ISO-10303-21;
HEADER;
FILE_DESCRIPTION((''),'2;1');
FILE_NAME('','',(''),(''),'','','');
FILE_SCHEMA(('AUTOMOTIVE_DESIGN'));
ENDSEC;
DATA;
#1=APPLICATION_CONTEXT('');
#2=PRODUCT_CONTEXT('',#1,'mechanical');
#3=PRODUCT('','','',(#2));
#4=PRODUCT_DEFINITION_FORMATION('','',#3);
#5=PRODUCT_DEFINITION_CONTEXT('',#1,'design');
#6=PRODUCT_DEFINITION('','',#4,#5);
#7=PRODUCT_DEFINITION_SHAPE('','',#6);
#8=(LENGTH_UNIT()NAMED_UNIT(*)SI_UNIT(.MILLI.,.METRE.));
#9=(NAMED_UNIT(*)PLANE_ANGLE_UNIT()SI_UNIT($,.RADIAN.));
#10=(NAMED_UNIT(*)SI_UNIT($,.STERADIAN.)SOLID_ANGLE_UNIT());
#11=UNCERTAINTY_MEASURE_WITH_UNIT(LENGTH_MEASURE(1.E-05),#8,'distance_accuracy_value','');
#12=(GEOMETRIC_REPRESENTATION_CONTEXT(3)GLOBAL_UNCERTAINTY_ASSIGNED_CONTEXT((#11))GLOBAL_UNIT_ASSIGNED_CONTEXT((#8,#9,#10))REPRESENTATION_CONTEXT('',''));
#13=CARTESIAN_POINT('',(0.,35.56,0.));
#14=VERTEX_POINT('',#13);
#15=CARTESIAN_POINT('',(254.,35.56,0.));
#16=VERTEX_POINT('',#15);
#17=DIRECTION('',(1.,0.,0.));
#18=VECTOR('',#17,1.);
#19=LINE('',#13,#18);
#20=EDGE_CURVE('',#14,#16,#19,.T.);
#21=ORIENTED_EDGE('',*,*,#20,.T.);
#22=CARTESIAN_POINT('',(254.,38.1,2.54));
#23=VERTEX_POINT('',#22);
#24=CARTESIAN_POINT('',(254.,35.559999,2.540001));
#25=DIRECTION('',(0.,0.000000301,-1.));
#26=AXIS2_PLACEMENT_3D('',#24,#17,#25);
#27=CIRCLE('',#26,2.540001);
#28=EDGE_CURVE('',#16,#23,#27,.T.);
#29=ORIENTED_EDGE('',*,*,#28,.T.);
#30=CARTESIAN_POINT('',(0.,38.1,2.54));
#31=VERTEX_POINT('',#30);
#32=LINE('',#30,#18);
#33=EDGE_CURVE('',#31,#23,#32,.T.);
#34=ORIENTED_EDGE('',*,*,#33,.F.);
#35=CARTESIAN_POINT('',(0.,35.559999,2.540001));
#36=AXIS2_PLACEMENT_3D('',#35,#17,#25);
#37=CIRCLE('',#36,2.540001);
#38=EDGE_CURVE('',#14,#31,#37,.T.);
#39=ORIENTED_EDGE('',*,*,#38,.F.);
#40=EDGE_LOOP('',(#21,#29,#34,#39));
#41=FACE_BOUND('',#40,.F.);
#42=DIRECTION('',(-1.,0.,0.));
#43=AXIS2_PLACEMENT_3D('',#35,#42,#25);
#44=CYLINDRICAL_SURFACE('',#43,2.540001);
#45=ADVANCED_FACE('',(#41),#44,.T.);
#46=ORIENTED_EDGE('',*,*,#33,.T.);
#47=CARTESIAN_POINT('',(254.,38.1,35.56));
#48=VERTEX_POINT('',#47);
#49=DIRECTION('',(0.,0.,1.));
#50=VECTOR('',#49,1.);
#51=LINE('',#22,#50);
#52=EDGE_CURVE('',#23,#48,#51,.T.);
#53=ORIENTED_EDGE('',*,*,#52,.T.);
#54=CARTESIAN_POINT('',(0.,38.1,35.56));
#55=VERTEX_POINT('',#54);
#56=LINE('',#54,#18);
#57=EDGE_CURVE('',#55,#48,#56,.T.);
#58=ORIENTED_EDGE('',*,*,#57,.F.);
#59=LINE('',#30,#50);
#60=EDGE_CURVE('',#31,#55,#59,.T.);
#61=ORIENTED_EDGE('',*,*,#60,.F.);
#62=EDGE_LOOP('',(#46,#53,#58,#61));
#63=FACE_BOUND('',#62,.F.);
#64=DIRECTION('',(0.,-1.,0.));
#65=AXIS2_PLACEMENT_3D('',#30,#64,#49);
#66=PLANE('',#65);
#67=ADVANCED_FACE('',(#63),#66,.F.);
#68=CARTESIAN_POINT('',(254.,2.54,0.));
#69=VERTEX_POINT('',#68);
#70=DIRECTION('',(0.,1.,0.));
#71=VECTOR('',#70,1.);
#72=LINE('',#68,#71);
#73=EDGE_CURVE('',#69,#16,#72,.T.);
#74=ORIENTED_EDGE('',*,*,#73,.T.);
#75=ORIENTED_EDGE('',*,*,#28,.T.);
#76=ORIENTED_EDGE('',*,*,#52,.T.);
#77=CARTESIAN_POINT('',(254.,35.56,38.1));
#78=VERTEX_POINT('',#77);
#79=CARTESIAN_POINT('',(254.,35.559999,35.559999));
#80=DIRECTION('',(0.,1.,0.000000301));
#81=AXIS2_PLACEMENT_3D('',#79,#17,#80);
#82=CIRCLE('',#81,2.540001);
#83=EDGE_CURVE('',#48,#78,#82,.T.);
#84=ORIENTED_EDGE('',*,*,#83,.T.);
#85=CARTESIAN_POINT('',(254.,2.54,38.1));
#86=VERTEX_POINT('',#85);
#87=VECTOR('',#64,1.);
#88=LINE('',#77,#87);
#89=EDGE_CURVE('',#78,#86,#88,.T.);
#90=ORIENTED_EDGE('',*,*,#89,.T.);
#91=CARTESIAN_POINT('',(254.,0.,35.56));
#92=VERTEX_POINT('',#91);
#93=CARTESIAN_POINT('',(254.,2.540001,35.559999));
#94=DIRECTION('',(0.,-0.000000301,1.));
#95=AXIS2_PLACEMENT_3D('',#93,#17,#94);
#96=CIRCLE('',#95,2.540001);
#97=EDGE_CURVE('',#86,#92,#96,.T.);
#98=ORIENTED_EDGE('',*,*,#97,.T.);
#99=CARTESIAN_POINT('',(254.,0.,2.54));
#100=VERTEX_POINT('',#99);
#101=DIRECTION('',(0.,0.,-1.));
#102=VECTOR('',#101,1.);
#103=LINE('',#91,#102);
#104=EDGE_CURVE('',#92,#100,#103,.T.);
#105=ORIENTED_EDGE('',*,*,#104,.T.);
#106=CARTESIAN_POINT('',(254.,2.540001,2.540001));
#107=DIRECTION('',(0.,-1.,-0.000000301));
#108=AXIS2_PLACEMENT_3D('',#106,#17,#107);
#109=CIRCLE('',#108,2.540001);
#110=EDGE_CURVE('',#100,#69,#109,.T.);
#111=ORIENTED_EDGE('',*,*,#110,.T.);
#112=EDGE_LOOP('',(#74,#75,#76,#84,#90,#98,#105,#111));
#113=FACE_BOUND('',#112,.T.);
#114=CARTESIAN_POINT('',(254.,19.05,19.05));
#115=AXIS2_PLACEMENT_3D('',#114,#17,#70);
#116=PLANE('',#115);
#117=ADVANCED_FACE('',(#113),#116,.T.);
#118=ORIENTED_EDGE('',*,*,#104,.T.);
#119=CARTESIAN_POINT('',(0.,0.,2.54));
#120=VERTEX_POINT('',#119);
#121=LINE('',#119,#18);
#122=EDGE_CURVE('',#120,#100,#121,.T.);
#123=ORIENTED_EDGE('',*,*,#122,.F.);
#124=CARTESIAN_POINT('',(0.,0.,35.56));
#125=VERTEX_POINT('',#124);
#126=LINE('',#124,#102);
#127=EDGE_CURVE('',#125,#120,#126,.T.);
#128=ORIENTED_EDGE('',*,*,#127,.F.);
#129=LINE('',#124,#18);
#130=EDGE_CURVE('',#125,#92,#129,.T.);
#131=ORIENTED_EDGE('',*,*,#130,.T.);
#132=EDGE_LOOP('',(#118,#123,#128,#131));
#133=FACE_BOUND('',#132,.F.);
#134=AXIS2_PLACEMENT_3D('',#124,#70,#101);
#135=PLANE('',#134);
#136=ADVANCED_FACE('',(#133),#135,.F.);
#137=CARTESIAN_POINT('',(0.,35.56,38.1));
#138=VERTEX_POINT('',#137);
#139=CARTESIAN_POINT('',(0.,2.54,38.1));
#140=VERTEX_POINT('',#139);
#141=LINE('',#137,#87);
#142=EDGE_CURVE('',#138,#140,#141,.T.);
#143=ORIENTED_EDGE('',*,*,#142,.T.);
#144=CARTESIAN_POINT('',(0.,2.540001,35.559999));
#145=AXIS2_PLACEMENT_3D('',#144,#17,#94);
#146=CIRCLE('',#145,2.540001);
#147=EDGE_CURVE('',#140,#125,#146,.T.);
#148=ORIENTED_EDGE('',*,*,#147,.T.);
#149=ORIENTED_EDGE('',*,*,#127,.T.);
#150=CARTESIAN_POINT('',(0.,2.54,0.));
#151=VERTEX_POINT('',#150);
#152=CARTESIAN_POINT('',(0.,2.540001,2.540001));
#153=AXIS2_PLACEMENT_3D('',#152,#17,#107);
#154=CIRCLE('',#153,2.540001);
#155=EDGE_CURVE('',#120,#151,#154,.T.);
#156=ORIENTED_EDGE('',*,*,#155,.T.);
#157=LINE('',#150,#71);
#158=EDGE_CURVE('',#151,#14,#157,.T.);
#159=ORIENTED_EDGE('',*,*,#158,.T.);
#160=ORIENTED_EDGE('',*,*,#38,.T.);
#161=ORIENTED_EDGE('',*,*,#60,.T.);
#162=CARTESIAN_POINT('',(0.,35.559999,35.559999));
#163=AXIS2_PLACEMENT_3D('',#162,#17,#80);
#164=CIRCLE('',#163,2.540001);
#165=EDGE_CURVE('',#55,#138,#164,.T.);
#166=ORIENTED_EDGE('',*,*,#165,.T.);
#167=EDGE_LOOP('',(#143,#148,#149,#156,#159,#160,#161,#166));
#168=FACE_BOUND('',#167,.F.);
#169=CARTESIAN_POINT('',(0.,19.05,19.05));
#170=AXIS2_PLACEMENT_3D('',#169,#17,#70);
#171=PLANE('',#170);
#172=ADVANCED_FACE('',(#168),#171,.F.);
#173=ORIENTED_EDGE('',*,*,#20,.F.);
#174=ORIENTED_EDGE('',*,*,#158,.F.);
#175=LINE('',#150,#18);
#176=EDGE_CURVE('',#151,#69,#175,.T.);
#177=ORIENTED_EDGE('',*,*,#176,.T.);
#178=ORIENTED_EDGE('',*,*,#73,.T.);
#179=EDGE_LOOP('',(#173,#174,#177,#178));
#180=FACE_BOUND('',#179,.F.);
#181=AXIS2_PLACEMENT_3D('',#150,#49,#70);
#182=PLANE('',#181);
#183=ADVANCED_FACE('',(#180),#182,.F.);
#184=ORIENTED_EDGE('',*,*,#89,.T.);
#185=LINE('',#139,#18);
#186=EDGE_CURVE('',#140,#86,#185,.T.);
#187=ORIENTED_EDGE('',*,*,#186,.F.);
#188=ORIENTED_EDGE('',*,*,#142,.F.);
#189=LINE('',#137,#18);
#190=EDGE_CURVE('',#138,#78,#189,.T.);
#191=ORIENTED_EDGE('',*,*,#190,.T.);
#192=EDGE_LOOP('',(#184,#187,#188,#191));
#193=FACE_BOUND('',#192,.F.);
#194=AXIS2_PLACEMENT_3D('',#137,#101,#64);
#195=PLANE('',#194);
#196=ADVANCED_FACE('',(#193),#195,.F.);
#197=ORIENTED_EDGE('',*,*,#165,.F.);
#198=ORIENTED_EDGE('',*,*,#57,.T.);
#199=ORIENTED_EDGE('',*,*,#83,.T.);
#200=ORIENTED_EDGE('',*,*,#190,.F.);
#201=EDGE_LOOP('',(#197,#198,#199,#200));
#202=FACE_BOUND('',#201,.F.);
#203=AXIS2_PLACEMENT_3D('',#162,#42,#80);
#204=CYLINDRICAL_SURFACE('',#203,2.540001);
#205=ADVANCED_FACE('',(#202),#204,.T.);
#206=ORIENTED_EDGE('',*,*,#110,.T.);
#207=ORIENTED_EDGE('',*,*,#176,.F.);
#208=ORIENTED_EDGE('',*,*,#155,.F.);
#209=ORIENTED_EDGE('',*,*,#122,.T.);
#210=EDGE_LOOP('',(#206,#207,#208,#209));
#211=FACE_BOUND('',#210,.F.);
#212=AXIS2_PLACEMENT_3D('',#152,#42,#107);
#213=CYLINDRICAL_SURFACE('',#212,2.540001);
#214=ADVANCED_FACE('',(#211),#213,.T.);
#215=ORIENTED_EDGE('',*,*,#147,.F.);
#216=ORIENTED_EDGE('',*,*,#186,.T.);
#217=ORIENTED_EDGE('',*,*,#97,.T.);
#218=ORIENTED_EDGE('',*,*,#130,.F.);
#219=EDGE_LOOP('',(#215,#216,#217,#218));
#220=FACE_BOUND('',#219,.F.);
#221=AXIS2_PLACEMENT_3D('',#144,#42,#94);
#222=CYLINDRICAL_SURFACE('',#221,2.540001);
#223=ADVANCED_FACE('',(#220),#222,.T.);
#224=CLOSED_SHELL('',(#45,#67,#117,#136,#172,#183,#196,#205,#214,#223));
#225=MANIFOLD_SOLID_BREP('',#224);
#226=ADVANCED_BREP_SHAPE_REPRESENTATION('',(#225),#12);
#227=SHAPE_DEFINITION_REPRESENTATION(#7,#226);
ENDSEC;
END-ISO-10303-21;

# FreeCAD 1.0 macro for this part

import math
import FreeCAD as App
import Part
import Sketcher

V = App.Vector
Q = App.Units.Quantity

doc = App.newDocument("Part")
params = doc.addObject("Spreadsheet::Sheet", "Params")
for row, (alias, value) in enumerate([
    ("sketch1_radius", "0.1 in"),
    ("sketch1_width", "1.3 in"),
    ("pad1_length", "10 in"),
], start=1):
    params.set(f"A{row}", alias)
    params.set(f"B{row}", "=" + value)
    params.setAlias(f"B{row}", alias)

body = doc.addObject("PartDesign::Body", "Body")

# Sketch on YZ plane
sketch1 = doc.addObject("Sketcher::SketchObject", "Sketch")
body.addObject(sketch1)
sketch1.AttachmentSupport = (doc.YZ_Plane, [""])
sketch1.MapMode = "FlatFace"
sketch1.addGeometry([
    Part.ArcOfCircle(Part.Circle(V(2.5, 2.5, 0), V(0, 0, 1), 2.5), math.radians(-180), math.radians(-90)),  # 0
    Part.LineSegment(V(2.5, 0, 0), V(35.6, 0, 0)),  # 1
    Part.ArcOfCircle(Part.Circle(V(35.6, 2.5, 0), V(0, 0, 1), 2.5), math.radians(-90), math.radians(0)),  # 2
    Part.LineSegment(V(38.1, 2.5, 0), V(38.1, 35.6, 0)),  # 3
    Part.ArcOfCircle(Part.Circle(V(35.6, 35.6, 0), V(0, 0, 1), 2.5), math.radians(0), math.radians(90)),  # 4
    Part.LineSegment(V(35.6, 38.1, 0), V(2.5, 38.1, 0)),  # 5
    Part.ArcOfCircle(Part.Circle(V(2.5, 35.6, 0), V(0, 0, 1), 2.5), math.radians(90), math.radians(180)),  # 6
    Part.LineSegment(V(0, 35.6, 0), V(0, 2.5, 0)),  # 7
], False)
sketch1.addConstraint([
    Sketcher.Constraint("Tangent", 0, 2, 1, 1),
    Sketcher.Constraint("Tangent", 1, 2, 2, 1),
    Sketcher.Constraint("Tangent", 2, 2, 3, 1),
    Sketcher.Constraint("Tangent", 3, 2, 4, 1),
    Sketcher.Constraint("Tangent", 4, 2, 5, 1),
    Sketcher.Constraint("Tangent", 5, 2, 6, 1),
    Sketcher.Constraint("Tangent", 6, 2, 7, 1),
    Sketcher.Constraint("Tangent", 7, 2, 0, 1),
    Sketcher.Constraint("Horizontal", 1),
    Sketcher.Constraint("Vertical", 3),
    Sketcher.Constraint("Horizontal", 5),
    Sketcher.Constraint("Vertical", 7),
    Sketcher.Constraint("Equal", 0, 2),
    Sketcher.Constraint("Equal", 2, 4),
    Sketcher.Constraint("Equal", 4, 6),
    Sketcher.Constraint("PointOnObject", 0, 2, -1),
    Sketcher.Constraint("PointOnObject", 6, 2, -2),
    Sketcher.Constraint("Equal", 5, 3),
    Sketcher.Constraint("Radius", 0, Q("0.1 in")),
    Sketcher.Constraint("DistanceX", 1, 1, 1, 2, Q("1.3 in")),
])
sketch1.setExpression("Constraints[18]", "Params.sketch1_radius")
sketch1.setExpression("Constraints[19]", "Params.sketch1_width")
pad1 = doc.addObject("PartDesign::Pad", "Pad")
body.addObject(pad1)
pad1.Profile = sketch1
pad1.setExpression("Length", "Params.pad1_length")

doc.recompute()
